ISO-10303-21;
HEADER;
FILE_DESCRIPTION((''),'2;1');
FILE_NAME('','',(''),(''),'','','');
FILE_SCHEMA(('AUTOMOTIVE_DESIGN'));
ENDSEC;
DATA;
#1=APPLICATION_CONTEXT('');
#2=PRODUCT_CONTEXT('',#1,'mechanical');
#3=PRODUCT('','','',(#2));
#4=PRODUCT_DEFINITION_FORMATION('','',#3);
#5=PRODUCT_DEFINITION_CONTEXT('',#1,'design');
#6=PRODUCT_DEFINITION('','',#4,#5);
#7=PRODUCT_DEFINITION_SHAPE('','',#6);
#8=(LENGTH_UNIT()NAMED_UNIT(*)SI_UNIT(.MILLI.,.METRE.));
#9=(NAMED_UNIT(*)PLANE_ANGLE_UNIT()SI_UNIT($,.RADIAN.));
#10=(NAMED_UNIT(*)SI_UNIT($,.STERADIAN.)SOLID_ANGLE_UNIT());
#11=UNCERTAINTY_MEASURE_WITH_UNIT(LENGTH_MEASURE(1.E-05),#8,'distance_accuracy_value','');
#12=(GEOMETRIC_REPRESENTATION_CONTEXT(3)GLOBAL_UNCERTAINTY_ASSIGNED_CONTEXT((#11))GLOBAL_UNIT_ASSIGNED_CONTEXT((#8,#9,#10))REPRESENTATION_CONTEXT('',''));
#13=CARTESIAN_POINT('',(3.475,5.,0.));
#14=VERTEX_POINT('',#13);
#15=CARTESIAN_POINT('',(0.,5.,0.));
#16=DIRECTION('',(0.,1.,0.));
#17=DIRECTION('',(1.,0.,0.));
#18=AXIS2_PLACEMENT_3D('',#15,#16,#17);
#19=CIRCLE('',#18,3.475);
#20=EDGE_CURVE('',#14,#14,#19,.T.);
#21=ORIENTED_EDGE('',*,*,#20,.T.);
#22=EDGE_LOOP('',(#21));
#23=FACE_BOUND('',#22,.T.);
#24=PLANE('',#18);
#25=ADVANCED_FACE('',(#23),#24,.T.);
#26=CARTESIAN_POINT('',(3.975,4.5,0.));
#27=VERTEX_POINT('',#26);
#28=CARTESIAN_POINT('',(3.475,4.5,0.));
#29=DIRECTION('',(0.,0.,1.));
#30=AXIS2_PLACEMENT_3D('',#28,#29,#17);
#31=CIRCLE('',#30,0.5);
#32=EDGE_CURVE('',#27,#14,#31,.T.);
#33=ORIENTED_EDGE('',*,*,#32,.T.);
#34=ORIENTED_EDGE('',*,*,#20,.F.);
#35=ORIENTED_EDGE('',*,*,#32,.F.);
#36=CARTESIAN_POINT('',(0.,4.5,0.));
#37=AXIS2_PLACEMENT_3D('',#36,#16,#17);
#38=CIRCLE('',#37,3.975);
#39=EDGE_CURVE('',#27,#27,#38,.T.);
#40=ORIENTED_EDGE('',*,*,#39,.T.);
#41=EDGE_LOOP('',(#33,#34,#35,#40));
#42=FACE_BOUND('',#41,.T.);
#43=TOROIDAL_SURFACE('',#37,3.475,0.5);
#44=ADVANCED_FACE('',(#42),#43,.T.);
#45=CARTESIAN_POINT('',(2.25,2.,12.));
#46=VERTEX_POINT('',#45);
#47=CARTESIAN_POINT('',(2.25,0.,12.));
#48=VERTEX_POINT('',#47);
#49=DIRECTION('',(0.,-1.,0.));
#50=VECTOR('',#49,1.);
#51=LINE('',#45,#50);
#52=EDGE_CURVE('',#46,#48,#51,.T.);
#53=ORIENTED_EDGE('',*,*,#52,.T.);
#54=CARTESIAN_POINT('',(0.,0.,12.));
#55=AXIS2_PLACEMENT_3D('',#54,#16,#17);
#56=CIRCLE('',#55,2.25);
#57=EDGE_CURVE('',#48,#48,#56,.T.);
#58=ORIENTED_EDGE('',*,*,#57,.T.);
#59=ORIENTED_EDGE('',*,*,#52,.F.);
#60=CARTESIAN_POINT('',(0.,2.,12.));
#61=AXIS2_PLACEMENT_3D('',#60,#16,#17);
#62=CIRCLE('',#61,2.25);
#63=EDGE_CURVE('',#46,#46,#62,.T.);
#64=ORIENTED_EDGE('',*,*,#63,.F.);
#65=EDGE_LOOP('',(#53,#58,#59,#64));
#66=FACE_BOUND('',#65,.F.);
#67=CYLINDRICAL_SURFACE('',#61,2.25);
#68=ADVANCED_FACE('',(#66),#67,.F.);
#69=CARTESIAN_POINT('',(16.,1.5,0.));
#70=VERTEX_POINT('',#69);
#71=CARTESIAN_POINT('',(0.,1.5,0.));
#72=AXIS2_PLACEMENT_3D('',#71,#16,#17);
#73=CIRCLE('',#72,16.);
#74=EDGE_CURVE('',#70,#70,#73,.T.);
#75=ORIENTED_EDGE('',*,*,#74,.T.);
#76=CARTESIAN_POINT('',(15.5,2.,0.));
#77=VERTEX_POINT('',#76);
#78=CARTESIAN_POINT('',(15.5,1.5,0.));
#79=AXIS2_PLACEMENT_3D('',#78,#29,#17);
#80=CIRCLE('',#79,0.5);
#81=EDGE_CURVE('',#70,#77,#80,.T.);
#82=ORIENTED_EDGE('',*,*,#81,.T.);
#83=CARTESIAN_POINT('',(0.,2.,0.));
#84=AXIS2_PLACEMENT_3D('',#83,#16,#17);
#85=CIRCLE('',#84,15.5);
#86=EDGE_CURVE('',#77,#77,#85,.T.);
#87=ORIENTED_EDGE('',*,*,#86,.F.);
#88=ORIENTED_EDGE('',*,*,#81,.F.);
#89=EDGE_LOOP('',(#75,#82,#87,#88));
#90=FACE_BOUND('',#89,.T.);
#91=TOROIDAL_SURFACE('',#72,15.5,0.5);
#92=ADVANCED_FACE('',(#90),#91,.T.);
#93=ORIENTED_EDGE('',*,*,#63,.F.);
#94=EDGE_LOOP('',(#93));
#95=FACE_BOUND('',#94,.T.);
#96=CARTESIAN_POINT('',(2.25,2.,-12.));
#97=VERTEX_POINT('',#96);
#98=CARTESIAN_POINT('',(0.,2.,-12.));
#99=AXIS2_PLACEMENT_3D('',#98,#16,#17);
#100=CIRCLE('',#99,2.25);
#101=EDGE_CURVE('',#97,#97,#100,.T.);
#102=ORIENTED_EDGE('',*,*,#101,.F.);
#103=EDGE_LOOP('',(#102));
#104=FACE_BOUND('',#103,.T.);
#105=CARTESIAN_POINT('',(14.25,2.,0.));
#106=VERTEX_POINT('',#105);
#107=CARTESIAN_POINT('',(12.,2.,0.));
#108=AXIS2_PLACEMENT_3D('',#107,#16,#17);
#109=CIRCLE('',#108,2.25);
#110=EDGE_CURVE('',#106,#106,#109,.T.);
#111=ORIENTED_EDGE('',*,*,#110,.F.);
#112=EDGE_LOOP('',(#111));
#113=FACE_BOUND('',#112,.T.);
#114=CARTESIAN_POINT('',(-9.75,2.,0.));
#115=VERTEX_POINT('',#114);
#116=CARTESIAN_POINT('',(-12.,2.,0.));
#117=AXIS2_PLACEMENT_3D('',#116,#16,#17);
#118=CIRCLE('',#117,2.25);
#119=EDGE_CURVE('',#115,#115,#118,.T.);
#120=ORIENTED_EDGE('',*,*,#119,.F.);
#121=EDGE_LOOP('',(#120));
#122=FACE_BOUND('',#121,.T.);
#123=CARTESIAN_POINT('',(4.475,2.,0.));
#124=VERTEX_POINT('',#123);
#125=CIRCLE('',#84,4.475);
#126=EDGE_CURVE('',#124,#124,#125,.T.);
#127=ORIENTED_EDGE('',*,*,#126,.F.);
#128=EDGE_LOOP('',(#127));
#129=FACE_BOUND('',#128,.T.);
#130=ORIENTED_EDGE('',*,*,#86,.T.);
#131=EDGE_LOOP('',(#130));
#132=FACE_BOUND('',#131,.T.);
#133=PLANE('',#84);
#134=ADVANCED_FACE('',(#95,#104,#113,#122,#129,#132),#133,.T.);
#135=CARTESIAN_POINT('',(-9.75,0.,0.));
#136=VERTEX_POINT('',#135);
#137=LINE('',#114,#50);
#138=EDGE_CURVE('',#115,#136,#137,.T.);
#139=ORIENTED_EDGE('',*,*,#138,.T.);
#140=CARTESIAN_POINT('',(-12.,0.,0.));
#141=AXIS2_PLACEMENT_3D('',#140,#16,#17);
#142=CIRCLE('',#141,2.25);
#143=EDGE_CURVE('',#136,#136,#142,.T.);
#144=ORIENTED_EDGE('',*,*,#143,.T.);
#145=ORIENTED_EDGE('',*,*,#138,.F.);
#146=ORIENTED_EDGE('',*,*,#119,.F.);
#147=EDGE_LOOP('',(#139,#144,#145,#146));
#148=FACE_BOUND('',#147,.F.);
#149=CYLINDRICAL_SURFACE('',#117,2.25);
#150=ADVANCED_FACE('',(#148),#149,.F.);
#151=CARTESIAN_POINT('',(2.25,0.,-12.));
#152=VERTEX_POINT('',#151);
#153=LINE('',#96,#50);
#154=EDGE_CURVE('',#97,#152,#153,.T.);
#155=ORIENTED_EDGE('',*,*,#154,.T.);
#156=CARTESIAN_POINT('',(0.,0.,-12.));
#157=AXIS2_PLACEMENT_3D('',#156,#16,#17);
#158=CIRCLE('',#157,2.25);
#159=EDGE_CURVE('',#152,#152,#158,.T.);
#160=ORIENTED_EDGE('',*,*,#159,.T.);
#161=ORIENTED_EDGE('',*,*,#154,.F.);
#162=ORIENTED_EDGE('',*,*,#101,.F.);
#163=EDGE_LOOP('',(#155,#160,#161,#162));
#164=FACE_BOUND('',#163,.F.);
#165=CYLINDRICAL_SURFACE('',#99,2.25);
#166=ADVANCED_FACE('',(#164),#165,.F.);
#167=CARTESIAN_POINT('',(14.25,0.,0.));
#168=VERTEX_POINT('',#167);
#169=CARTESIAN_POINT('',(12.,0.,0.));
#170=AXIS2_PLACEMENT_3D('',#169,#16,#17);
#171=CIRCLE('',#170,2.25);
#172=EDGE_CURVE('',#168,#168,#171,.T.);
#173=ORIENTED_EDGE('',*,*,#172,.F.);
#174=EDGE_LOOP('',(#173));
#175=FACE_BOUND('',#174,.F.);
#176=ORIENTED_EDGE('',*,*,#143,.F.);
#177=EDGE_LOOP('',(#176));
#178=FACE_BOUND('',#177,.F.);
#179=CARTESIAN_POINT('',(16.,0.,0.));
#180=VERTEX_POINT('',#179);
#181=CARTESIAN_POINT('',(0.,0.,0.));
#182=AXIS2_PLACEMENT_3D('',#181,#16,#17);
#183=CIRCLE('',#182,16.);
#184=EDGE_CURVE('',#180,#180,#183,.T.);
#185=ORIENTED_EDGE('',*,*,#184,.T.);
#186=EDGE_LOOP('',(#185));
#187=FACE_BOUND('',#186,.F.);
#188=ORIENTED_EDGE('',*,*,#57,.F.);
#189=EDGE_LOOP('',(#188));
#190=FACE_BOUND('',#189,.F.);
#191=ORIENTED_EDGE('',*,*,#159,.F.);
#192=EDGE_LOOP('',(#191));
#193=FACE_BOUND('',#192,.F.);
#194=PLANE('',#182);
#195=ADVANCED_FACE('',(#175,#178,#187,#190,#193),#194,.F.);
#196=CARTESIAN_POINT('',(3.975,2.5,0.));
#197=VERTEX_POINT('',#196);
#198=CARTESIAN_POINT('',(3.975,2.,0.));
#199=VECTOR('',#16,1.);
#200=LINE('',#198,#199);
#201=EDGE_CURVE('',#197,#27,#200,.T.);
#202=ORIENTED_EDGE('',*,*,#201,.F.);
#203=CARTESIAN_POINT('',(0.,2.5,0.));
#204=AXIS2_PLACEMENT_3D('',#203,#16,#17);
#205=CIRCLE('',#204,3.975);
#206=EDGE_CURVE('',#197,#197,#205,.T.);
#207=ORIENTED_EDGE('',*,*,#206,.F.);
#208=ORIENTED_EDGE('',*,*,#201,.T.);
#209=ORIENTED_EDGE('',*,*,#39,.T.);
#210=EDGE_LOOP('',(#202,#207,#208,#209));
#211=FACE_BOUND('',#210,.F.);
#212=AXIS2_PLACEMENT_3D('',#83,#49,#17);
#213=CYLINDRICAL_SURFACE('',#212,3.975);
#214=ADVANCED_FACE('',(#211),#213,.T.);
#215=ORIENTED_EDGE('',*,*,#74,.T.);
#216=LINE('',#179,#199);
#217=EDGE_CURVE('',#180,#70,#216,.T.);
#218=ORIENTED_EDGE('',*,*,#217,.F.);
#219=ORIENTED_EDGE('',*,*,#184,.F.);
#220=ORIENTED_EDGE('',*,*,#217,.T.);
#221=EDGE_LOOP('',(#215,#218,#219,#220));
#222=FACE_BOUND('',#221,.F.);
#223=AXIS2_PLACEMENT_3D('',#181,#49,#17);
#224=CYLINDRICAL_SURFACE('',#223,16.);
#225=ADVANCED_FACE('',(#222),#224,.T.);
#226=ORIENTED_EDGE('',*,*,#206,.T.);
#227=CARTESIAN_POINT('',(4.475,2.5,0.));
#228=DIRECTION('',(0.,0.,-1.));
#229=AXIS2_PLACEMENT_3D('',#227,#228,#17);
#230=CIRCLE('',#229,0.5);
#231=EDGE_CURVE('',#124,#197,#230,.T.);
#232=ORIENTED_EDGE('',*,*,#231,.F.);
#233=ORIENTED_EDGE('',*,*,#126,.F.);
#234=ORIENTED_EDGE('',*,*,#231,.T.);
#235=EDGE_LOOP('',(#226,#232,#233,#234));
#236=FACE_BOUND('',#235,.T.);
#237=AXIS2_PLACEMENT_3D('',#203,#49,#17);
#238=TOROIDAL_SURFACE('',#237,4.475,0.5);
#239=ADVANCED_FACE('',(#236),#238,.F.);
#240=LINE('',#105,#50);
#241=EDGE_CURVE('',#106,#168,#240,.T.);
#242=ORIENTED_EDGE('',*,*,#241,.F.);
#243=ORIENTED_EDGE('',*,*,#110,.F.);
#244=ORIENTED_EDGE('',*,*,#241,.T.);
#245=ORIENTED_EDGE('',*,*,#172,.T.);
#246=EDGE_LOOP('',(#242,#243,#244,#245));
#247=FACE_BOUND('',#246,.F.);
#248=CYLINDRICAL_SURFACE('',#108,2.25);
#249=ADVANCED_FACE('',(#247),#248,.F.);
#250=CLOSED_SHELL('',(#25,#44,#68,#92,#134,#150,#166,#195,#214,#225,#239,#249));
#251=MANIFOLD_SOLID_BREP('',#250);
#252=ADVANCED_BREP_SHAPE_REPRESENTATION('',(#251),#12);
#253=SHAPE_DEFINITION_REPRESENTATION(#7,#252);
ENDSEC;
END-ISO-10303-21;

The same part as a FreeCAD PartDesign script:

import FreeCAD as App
import Part
import Sketcher
from FreeCAD import Vector


def edges_at(feature, points):
    """Names of the edges that pass closest to the given points."""
    edges = feature.Shape.Edges
    near = lambda p: min(range(len(edges)), key=lambda i: edges[i].distToShape(Part.Vertex(*p))[0])
    return sorted({f"Edge{near(p) + 1}" for p in points})

doc = App.newDocument("Part")
params = doc.addObject("Spreadsheet::Sheet", "Params")
for row, (alias, value) in enumerate([
    ("sketch1_diameter", "32 mm"),
    ("pad1_length", "2 mm"),
    ("sketch2_diameter", "4.5 mm"),
    ("sketch3_diameter", "7.95 mm"),
    ("pad2_length", "3 mm"),
    ("fillet_radius", "0.5 mm"),
], start=1):
    params.set(f"A{row}", alias)
    params.set(f"B{row}", "=" + value)
    params.setAlias(f"B{row}", alias)

body = doc.addObject("PartDesign::Body", "Body")

sketch1 = body.newObject("Sketcher::SketchObject", "Sketch")
sketch1.AttachmentSupport = (doc.getObject("XZ_Plane"), [""])
sketch1.MapMode = "FlatFace"
sketch1.addGeometry(Part.Circle(Vector(0, 0, 0), Vector(0, 0, 1), 16), False)
sketch1.addConstraint([
    Sketcher.Constraint("Coincident", 0, 3, -1, 1),
    Sketcher.Constraint("Diameter", 0, 32.0),
])
sketch1.setExpression("Constraints[1]", "Params.sketch1_diameter")
pad1 = body.newObject("PartDesign::Pad", "Pad")
pad1.Profile = sketch1
pad1.setExpression("Length", "Params.pad1_length")
pad1.Reversed = True

sketch2 = body.newObject("Sketcher::SketchObject", "Sketch001")
sketch2.AttachmentSupport = (doc.getObject("XZ_Plane"), [""])
sketch2.MapMode = "FlatFace"
sketch2.AttachmentOffset = App.Placement(Vector(0, 0, -2), App.Rotation())
sketch2.addGeometry([
    Part.Circle(Vector(0, -12, 0), Vector(0, 0, 1), 2.2),
    Part.Circle(Vector(12, 0, 0), Vector(0, 0, 1), 2.2),
    Part.Circle(Vector(0, 12, 0), Vector(0, 0, 1), 2.2),
    Part.Circle(Vector(-12, 0, 0), Vector(0, 0, 1), 2.2),
], False)
sketch2.addConstraint([
    Sketcher.Constraint("Equal", 0, 1),
    Sketcher.Constraint("Equal", 1, 2),
    Sketcher.Constraint("Equal", 2, 3),
    Sketcher.Constraint("Symmetric", 0, 3, 2, 3, -1, 1),
    Sketcher.Constraint("Symmetric", 1, 3, 3, 3, -1, 1),
    Sketcher.Constraint("PointOnObject", 0, 3, -2),
    Sketcher.Constraint("PointOnObject", 1, 3, -1),
    Sketcher.Constraint("Diameter", 0, 4.5),
    Sketcher.Constraint("DistanceY", 0, 3, -1, 1, 12.0),
    Sketcher.Constraint("DistanceX", -1, 1, 1, 3, 12.0),
])
sketch2.setExpression("Constraints[7]", "Params.sketch2_diameter")
pocket1 = body.newObject("PartDesign::Pocket", "Pocket")
pocket1.Profile = sketch2
pocket1.Type = "ThroughAll"
pocket1.Reversed = True

sketch3 = body.newObject("Sketcher::SketchObject", "Sketch002")
sketch3.AttachmentSupport = (doc.getObject("XZ_Plane"), [""])
sketch3.MapMode = "FlatFace"
sketch3.AttachmentOffset = App.Placement(Vector(0, 0, -2), App.Rotation())
sketch3.addGeometry(Part.Circle(Vector(0, 0, 0), Vector(0, 0, 1), 4), False)
sketch3.addConstraint([
    Sketcher.Constraint("Coincident", 0, 3, -1, 1),
    Sketcher.Constraint("Diameter", 0, 7.95),
])
sketch3.setExpression("Constraints[1]", "Params.sketch3_diameter")
pad2 = body.newObject("PartDesign::Pad", "Pad001")
pad2.Profile = sketch3
pad2.setExpression("Length", "Params.pad2_length")
pad2.Reversed = True
doc.recompute()

fillet = body.newObject("PartDesign::Fillet", "Fillet")
fillet.Base = (pad2, edges_at(pad2, [(-3.975, 2, 0), (-3.975, 5, 0), (-16, 2, 0)]))
fillet.setExpression("Radius", "Params.fillet_radius")

doc.recompute()
